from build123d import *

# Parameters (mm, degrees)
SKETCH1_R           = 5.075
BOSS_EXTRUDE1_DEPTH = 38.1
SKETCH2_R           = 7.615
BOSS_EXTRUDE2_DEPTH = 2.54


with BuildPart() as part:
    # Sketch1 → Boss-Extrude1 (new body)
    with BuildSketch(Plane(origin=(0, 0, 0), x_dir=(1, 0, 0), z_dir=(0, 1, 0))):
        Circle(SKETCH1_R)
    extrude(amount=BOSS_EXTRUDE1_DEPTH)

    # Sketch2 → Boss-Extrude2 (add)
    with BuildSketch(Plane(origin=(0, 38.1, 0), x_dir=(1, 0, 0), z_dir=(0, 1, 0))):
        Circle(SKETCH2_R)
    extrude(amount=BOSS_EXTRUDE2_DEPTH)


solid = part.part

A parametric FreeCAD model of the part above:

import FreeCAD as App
import Part
import Sketcher
Q = App.Units.Quantity

doc = App.newDocument("Part")
params = doc.addObject("Spreadsheet::Sheet", "Params")
for row, (alias, value) in enumerate([
    ("pad1_length", "1.5 in"),
    ("pad2_length", "0.1 in"),
], start=1):
    params.set(f"A{row}", alias)
    params.set(f"B{row}", "=" + value)
    params.setAlias(f"B{row}", alias)

body = doc.addObject("PartDesign::Body", "Body")

sketch1 = body.newObject("Sketcher::SketchObject", "Sketch")
sketch1.AttachmentSupport = (doc.getObject("XZ_Plane"), [""])
sketch1.MapMode = "FlatFace"
sketch1.addGeometry(Part.Circle(App.Vector(0, 0, 0), App.Vector(0, 0, 1), 5.075), False)
sketch1.addConstraint(Sketcher.Constraint("Coincident", 0, 3, -1, 1))
sketch1.addConstraint(Sketcher.Constraint("Diameter", 0, Q("10.15 mm")))
pad1 = body.newObject("PartDesign::Pad", "Pad")
pad1.Profile = sketch1
pad1.setExpression("Length", "Params.pad1_length")
pad1.Reversed = True

sketch2 = body.newObject("Sketcher::SketchObject", "Sketch001")
sketch2.AttachmentSupport = (doc.getObject("XZ_Plane"), [""])
sketch2.MapMode = "FlatFace"
sketch2.AttachmentOffset = App.Placement(App.Vector(0, 0, -1.5 * 25.4), App.Rotation())
sketch2.addGeometry(Part.Circle(App.Vector(0, 0, 0), App.Vector(0, 0, 1), 7.615), False)
sketch2.addConstraint(Sketcher.Constraint("Coincident", 0, 3, -1, 1))
sketch2.addConstraint(Sketcher.Constraint("Diameter", 0, Q("15.23 mm")))
pad2 = body.newObject("PartDesign::Pad", "Pad001")
pad2.Profile = sketch2
pad2.setExpression("Length", "Params.pad2_length")
pad2.Reversed = True

doc.recompute()
